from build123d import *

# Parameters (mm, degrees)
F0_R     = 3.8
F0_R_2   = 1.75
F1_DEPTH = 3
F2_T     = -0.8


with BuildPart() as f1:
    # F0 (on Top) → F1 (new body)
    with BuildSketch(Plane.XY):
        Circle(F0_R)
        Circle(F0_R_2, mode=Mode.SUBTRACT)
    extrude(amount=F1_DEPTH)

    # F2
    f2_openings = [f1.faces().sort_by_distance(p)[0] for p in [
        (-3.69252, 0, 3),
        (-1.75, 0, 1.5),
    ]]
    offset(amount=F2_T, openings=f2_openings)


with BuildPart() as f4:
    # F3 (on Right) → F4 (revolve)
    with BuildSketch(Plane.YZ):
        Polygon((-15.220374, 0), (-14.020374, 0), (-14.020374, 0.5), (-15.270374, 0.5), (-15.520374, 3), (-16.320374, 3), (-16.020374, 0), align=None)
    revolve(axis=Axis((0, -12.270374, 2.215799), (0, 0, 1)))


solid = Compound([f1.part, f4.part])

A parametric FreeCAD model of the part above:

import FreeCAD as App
import Part
import Sketcher

V = App.Vector
Q = App.Units.Quantity


def faces_at(feature, points):
    """Names of the faces that lie closest to the given points."""
    faces = feature.Shape.Faces
    near = lambda p: min(range(len(faces)), key=lambda i: faces[i].distToShape(Part.Vertex(*p))[0])
    return sorted({f"Face{near(p) + 1}" for p in points})


def add_polygon(sketch, points):
    """Adds a closed chain of lines whose ends are joined by coincident constraints."""
    first, n = sketch.GeometryCount, len(points)
    for a, b in zip(points, points[1:] + points[:1]):
        sketch.addGeometry(Part.LineSegment(App.Vector(*a, 0), App.Vector(*b, 0)), False)
    for i in range(n):
        sketch.addConstraint(Sketcher.Constraint("Coincident", first + i, 2, first + (i + 1) % n, 1))

doc = App.newDocument("Part")
params = doc.addObject("Spreadsheet::Sheet", "Params")
for row, (alias, value) in enumerate([
    ("sketch1_diameter", "7.6 mm"),
    ("sketch1_diameter2", "3.5 mm"),
    ("pad1_length", "3 mm"),
    ("thickness_wall", "0.8 mm"),
    ("sketch2_width", "2 mm"),
    ("sketch2_height", "3 mm"),
    ("sketch2_width2", "0.8 mm"),
    ("sketch2_height2", "0.5 mm"),
    ("sketch2_width3", "1.25 mm"),
    ("revolution_angle", "360 deg"),
], start=1):
    params.set(f"A{row}", alias)
    params.set(f"B{row}", "=" + value)
    params.setAlias(f"B{row}", alias)

body = doc.addObject("PartDesign::Body", "Body")

# Sketch on XY plane
sketch1 = body.newObject("Sketcher::SketchObject", "Sketch")
sketch1.AttachmentSupport = (doc.getObject("XY_Plane"), [""])
sketch1.MapMode = "FlatFace"
sketch1.addGeometry([
    Part.Circle(V(0, 0, 0), V(0, 0, 1), 3.8),
    Part.Circle(V(0, 0, 0), V(0, 0, 1), 1.8),
], False)
sketch1.addConstraint([
    Sketcher.Constraint("Coincident", 0, 3, -1, 1),
    Sketcher.Constraint("Coincident", 1, 3, -1, 1),
    Sketcher.Constraint("Diameter", 0, Q("7.6 mm")),
    Sketcher.Constraint("Diameter", 1, Q("3.5 mm")),
])
sketch1.setExpression("Constraints[2]", "Params.sketch1_diameter")
sketch1.setExpression("Constraints[3]", "Params.sketch1_diameter2")
pad1 = body.newObject("PartDesign::Pad", "Pad")
pad1.Profile = sketch1
pad1.setExpression("Length", "Params.pad1_length")
doc.recompute()

thickness = body.newObject("PartDesign::Thickness", "Thickness")
thickness.Base = (pad1, faces_at(pad1, [(-1.52, -1.52, 3), (-1.75, 0, 1.5)]))
thickness.setExpression("Value", "Params.thickness_wall")
thickness.Reversed = True
thickness.Join = "Arc"
body2 = doc.addObject("PartDesign::Body", "Body001")

# Sketch on YZ plane
sketch2 = body2.newObject("Sketcher::SketchObject", "Sketch001")
sketch2.AttachmentSupport = (doc.getObject("YZ_Plane001"), [""])
sketch2.MapMode = "FlatFace"
add_polygon(sketch2, [(-14, 0), (-14, 0.5), (-15.3, 0.5), (-15.5, 3), (-16.3, 3), (-16, 0)])  # lines 0-5
sketch2.addGeometry(Part.LineSegment(V(-12.3, 0, 0), V(-12.3, 3, 0)), True)  # axis
sketch2.addConstraint([
    Sketcher.Constraint("Vertical", 0),
    Sketcher.Constraint("Horizontal", 1),
    Sketcher.Constraint("Horizontal", 3),
    Sketcher.Constraint("Horizontal", 5),
    Sketcher.Constraint("Vertical", 6),
    Sketcher.Constraint("PointOnObject", 4, 2, -1),
    Sketcher.Constraint("PointOnObject", 6, 1, -1),
    Sketcher.Constraint("Parallel", 2, 4),
    Sketcher.Constraint("Horizontal", 3, 2, 6, 2),
    Sketcher.Constraint("DistanceX", 5, 1, 5, 2, Q("2 mm")),
    Sketcher.Constraint("DistanceY", 6, 1, 6, 2, Q("3 mm")),
    Sketcher.Constraint("DistanceX", 3, 2, 3, 1, Q("0.8 mm")),
    Sketcher.Constraint("DistanceY", 0, 1, 0, 2, Q("0.5 mm")),
    Sketcher.Constraint("DistanceX", 1, 2, 6, 1, Q("3 mm")),
    Sketcher.Constraint("DistanceX", 1, 2, 1, 1, Q("1.25 mm")),
    Sketcher.Constraint("DistanceX", 0, 2, -1, 1, Q("14.020374 mm")),
])
sketch2.setExpression("Constraints[15]", "Params.sketch2_width")
sketch2.setExpression("Constraints[16]", "Params.sketch2_height")
sketch2.setExpression("Constraints[17]", "Params.sketch2_width2")
sketch2.setExpression("Constraints[18]", "Params.sketch2_height2")
sketch2.setExpression("Constraints[20]", "Params.sketch2_width3")
revolution = body2.newObject("PartDesign::Revolution", "Revolution")
revolution.Profile = sketch2
revolution.ReferenceAxis = (sketch2, ["Axis0"])
revolution.setExpression("Angle", "Params.revolution_angle")

doc.recompute()
